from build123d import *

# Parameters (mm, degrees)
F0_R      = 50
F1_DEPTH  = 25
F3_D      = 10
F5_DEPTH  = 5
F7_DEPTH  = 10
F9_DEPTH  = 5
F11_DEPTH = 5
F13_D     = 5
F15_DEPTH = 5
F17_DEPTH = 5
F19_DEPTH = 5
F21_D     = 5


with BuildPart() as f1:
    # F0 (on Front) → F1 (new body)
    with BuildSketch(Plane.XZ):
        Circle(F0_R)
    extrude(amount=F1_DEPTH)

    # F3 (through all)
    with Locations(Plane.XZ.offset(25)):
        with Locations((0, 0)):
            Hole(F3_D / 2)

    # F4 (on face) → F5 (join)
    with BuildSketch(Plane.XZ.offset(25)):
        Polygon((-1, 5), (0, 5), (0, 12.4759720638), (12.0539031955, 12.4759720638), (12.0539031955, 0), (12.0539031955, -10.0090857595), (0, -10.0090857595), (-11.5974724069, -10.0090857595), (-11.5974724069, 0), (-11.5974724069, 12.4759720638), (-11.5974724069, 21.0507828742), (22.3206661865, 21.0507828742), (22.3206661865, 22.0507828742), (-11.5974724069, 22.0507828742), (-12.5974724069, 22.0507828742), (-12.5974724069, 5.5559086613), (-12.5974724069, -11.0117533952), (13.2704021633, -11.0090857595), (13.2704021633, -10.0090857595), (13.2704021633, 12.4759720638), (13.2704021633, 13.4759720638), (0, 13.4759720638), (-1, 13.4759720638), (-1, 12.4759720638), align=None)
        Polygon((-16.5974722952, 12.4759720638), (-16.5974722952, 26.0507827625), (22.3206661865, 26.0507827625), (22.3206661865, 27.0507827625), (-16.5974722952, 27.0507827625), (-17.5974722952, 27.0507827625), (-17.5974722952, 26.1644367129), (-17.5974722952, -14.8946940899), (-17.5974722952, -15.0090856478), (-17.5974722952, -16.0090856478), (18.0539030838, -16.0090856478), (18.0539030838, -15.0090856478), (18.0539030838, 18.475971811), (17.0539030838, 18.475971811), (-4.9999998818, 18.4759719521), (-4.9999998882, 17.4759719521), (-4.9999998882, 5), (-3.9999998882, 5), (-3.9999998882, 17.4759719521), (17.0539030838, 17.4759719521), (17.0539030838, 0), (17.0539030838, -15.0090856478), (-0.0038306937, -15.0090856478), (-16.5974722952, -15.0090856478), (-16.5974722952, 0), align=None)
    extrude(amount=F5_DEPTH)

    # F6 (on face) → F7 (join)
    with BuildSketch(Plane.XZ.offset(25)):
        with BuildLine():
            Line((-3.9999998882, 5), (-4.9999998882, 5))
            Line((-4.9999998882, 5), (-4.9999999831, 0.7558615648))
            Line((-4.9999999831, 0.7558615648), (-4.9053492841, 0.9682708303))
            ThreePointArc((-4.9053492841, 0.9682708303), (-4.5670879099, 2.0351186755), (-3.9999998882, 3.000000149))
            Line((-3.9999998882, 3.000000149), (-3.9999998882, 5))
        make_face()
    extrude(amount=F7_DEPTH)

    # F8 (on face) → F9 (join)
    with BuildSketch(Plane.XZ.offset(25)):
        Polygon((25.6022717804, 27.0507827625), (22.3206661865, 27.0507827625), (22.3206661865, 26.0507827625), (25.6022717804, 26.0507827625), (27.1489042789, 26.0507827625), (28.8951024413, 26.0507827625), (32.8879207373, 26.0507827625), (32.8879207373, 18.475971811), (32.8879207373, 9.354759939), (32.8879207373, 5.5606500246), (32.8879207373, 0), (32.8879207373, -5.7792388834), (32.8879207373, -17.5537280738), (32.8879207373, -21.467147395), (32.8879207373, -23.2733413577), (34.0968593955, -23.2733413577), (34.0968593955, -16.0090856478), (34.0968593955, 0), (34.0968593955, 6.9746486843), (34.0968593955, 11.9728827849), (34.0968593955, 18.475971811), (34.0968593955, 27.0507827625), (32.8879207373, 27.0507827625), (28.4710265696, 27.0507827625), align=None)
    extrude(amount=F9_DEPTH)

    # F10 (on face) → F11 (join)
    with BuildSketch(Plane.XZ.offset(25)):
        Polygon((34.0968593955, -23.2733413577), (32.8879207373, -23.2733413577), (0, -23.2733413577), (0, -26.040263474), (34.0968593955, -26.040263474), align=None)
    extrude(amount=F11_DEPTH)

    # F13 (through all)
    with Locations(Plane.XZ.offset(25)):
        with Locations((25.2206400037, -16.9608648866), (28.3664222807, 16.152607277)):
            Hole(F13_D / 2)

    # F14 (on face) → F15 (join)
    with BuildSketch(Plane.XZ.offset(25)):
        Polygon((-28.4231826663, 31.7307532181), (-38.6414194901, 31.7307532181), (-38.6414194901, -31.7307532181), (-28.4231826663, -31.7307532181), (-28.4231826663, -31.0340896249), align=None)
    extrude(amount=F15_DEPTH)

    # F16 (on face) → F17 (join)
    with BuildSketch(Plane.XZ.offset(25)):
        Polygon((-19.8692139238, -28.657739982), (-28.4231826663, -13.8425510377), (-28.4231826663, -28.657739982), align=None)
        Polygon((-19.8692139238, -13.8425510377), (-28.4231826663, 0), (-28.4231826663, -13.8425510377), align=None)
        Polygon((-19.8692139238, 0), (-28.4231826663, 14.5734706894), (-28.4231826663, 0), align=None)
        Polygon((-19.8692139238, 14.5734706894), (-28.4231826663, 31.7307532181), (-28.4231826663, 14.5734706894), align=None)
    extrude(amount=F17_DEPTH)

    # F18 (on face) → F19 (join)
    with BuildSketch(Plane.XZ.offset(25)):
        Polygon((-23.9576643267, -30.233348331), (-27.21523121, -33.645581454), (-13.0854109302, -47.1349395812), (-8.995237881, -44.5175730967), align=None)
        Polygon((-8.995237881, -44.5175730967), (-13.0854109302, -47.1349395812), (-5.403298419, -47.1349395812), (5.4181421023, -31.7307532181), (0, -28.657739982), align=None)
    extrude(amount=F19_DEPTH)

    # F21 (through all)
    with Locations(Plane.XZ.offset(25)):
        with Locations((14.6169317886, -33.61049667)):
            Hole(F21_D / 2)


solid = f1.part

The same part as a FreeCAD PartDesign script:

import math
import FreeCAD as App
import Part
import Sketcher

doc = App.newDocument("Part")
body = doc.addObject("PartDesign::Body", "Body")

sketch1 = doc.addObject("Sketcher::SketchObject", "Sketch")
body.addObject(sketch1)
sketch1.AttachmentSupport = (doc.XZ_Plane, [""])
sketch1.MapMode = "FlatFace"
sketch1.addGeometry(Part.Circle(App.Vector(0, 0, 0), App.Vector(0, 0, 1), 50), False)
sketch1.addConstraint([
    Sketcher.Constraint("Coincident", 0, 3, -1, 1),
    Sketcher.Constraint("Diameter", 0, 100.0),
])
pad1 = doc.addObject("PartDesign::Pad", "Pad")
body.addObject(pad1)
pad1.Profile = sketch1
pad1.Length = 25

sketch2 = doc.addObject("Sketcher::SketchObject", "Sketch001")
body.addObject(sketch2)
sketch2.AttachmentSupport = (doc.XZ_Plane, [""])
sketch2.MapMode = "FlatFace"
sketch2.AttachmentOffset = App.Placement(App.Vector(0, 0, 25), App.Rotation())
sketch2.addGeometry(Part.Circle(App.Vector(0, 0, 0), App.Vector(0, 0, 1), 5), False)
sketch2.addConstraint([
    Sketcher.Constraint("Coincident", 0, 3, -1, 1),
    Sketcher.Constraint("Diameter", 0, 10.0),
])
doc.recompute()
hole = doc.addObject("PartDesign::Hole", "Hole")
body.addObject(hole)
hole.Profile = sketch2
hole.ThreadType = "None"
hole.Diameter = 10
hole.DepthType = "ThroughAll"

sketch3 = doc.addObject("Sketcher::SketchObject", "Sketch002")
body.addObject(sketch3)
sketch3.AttachmentSupport = (doc.XZ_Plane, [""])
sketch3.MapMode = "FlatFace"
sketch3.AttachmentOffset = App.Placement(App.Vector(0, 0, 25), App.Rotation())
sketch3.addGeometry([
    Part.LineSegment(App.Vector(-1, 5, 0), App.Vector(0, 5, 0)),
    Part.LineSegment(App.Vector(0, 5, 0), App.Vector(0, 12.475972, 0)),
    Part.LineSegment(App.Vector(0, 12.475972, 0), App.Vector(12.053903, 12.475972, 0)),
    Part.LineSegment(App.Vector(12.053903, 12.475972, 0), App.Vector(12.053903, -10.009086, 0)),
    Part.LineSegment(App.Vector(12.053903, -10.009086, 0), App.Vector(-11.597472, -10.009086, 0)),
    Part.LineSegment(App.Vector(-11.597472, -10.009086, 0), App.Vector(-11.597472, 21.050783, 0)),
    Part.LineSegment(App.Vector(-11.597472, 21.050783, 0), App.Vector(22.320666, 21.050783, 0)),
    Part.LineSegment(App.Vector(22.320666, 21.050783, 0), App.Vector(22.320666, 22.050783, 0)),
    Part.LineSegment(App.Vector(22.320666, 22.050783, 0), App.Vector(-12.597472, 22.050783, 0)),
    Part.LineSegment(App.Vector(-12.597472, 22.050783, 0), App.Vector(-12.597472, -11.011753, 0)),
    Part.LineSegment(App.Vector(-12.597472, -11.011753, 0), App.Vector(13.270402, -11.009086, 0)),
    Part.LineSegment(App.Vector(13.270402, -11.009086, 0), App.Vector(13.270402, 13.475972, 0)),
    Part.LineSegment(App.Vector(13.270402, 13.475972, 0), App.Vector(-1, 13.475972, 0)),
    Part.LineSegment(App.Vector(-1, 13.475972, 0), App.Vector(-1, 5, 0)),
    Part.LineSegment(App.Vector(-16.597472, 26.050783, 0), App.Vector(22.320666, 26.050783, 0)),
    Part.LineSegment(App.Vector(22.320666, 26.050783, 0), App.Vector(22.320666, 27.050783, 0)),
    Part.LineSegment(App.Vector(22.320666, 27.050783, 0), App.Vector(-17.597472, 27.050783, 0)),
    Part.LineSegment(App.Vector(-17.597472, 27.050783, 0), App.Vector(-17.597472, -16.009086, 0)),
    Part.LineSegment(App.Vector(-17.597472, -16.009086, 0), App.Vector(18.053903, -16.009086, 0)),
    Part.LineSegment(App.Vector(18.053903, -16.009086, 0), App.Vector(18.053903, 18.475972, 0)),
    Part.LineSegment(App.Vector(18.053903, 18.475972, 0), App.Vector(17.053903, 18.475972, 0)),
    Part.LineSegment(App.Vector(17.053903, 18.475972, 0), App.Vector(-5, 18.475972, 0)),
    Part.LineSegment(App.Vector(-5, 18.475972, 0), App.Vector(-5, 17.475972, 0)),
    Part.LineSegment(App.Vector(-5, 17.475972, 0), App.Vector(-5, 5, 0)),
    Part.LineSegment(App.Vector(-5, 5, 0), App.Vector(-4, 5, 0)),
    Part.LineSegment(App.Vector(-4, 5, 0), App.Vector(-4, 17.475972, 0)),
    Part.LineSegment(App.Vector(-4, 17.475972, 0), App.Vector(17.053903, 17.475972, 0)),
    Part.LineSegment(App.Vector(17.053903, 17.475972, 0), App.Vector(17.053903, -15.009086, 0)),
    Part.LineSegment(App.Vector(17.053903, -15.009086, 0), App.Vector(-16.597472, -15.009086, 0)),
    Part.LineSegment(App.Vector(-16.597472, -15.009086, 0), App.Vector(-16.597472, 26.050783, 0)),
], False)
sketch3.addConstraint([
    Sketcher.Constraint("Coincident", 0, 2, 1, 1),
    Sketcher.Constraint("Coincident", 1, 2, 2, 1),
    Sketcher.Constraint("Coincident", 2, 2, 3, 1),
    Sketcher.Constraint("Coincident", 3, 2, 4, 1),
    Sketcher.Constraint("Coincident", 4, 2, 5, 1),
    Sketcher.Constraint("Coincident", 5, 2, 6, 1),
    Sketcher.Constraint("Coincident", 6, 2, 7, 1),
    Sketcher.Constraint("Coincident", 7, 2, 8, 1),
    Sketcher.Constraint("Coincident", 8, 2, 9, 1),
    Sketcher.Constraint("Coincident", 9, 2, 10, 1),
    Sketcher.Constraint("Coincident", 10, 2, 11, 1),
    Sketcher.Constraint("Coincident", 11, 2, 12, 1),
    Sketcher.Constraint("Coincident", 12, 2, 13, 1),
    Sketcher.Constraint("Coincident", 13, 2, 0, 1),
    Sketcher.Constraint("Coincident", 14, 2, 15, 1),
    Sketcher.Constraint("Coincident", 15, 2, 16, 1),
    Sketcher.Constraint("Coincident", 16, 2, 17, 1),
    Sketcher.Constraint("Coincident", 17, 2, 18, 1),
    Sketcher.Constraint("Coincident", 18, 2, 19, 1),
    Sketcher.Constraint("Coincident", 19, 2, 20, 1),
    Sketcher.Constraint("Coincident", 20, 2, 21, 1),
    Sketcher.Constraint("Coincident", 21, 2, 22, 1),
    Sketcher.Constraint("Coincident", 22, 2, 23, 1),
    Sketcher.Constraint("Coincident", 23, 2, 24, 1),
    Sketcher.Constraint("Coincident", 24, 2, 25, 1),
    Sketcher.Constraint("Coincident", 25, 2, 26, 1),
    Sketcher.Constraint("Coincident", 26, 2, 27, 1),
    Sketcher.Constraint("Coincident", 27, 2, 28, 1),
    Sketcher.Constraint("Coincident", 28, 2, 29, 1),
    Sketcher.Constraint("Coincident", 29, 2, 14, 1),
    Sketcher.Constraint("Horizontal", 0),
    Sketcher.Constraint("Vertical", 1),
    Sketcher.Constraint("Horizontal", 2),
    Sketcher.Constraint("Vertical", 3),
    Sketcher.Constraint("Horizontal", 4),
    Sketcher.Constraint("Vertical", 5),
    Sketcher.Constraint("Horizontal", 6),
    Sketcher.Constraint("Vertical", 7),
    Sketcher.Constraint("Horizontal", 8),
    Sketcher.Constraint("Vertical", 9),
    Sketcher.Constraint("Vertical", 11),
    Sketcher.Constraint("Horizontal", 12),
    Sketcher.Constraint("Vertical", 13),
    Sketcher.Constraint("Horizontal", 14),
    Sketcher.Constraint("Vertical", 15),
    Sketcher.Constraint("Horizontal", 16),
    Sketcher.Constraint("Vertical", 17),
    Sketcher.Constraint("Horizontal", 18),
    Sketcher.Constraint("Vertical", 19),
    Sketcher.Constraint("Horizontal", 20),
    Sketcher.Constraint("Horizontal", 21),
    Sketcher.Constraint("Vertical", 22),
    Sketcher.Constraint("Vertical", 23),
    Sketcher.Constraint("Horizontal", 24),
    Sketcher.Constraint("Vertical", 25),
    Sketcher.Constraint("Horizontal", 26),
    Sketcher.Constraint("Vertical", 27),
    Sketcher.Constraint("Horizontal", 28),
    Sketcher.Constraint("Vertical", 29),
    Sketcher.Constraint("PointOnObject", 0, 2, -2),
    Sketcher.Constraint("Horizontal", 13, 2, 23, 2),
    Sketcher.Constraint("Horizontal", 22, 2, 25, 2),
    Sketcher.Constraint("Vertical", 7, 2, 14, 2),
    Sketcher.Constraint("Vertical", 20, 2, 26, 2),
    Sketcher.Constraint("Equal", 0, 20),
    Sketcher.Constraint("Equal", 20, 24),
    Sketcher.Constraint("Equal", 24, 7),
    Sketcher.Constraint("Equal", 7, 15),
    Sketcher.Constraint("Equal", 15, 22),
    Sketcher.Constraint("DistanceX", 0, 1, 0, 2, 1.0),
    Sketcher.Constraint("DistanceY", -1, 1, 0, 2, 5.0),
    Sketcher.Constraint("DistanceX", 21, 2, -1, 1, 5.0),
    Sketcher.Constraint("DistanceX", 8, 2, 5, 2, 1.0),
    Sketcher.Constraint("DistanceY", 10, 2, 3, 2, 1.0),
    Sketcher.Constraint("DistanceY", 2, 2, 11, 2, 1.0),
    Sketcher.Constraint("DistanceY", 7, 2, 14, 2, 4.0),
    Sketcher.Constraint("DistanceX", 16, 2, 8, 2, 5.0),
    Sketcher.Constraint("DistanceY", 17, 2, 4, 2, 6.0),
    Sketcher.Constraint("DistanceX", 3, 2, 18, 2, 6.0),
    Sketcher.Constraint("DistanceY", 11, 2, 19, 2, 5.0),
    Sketcher.Constraint("DistanceY", 18, 2, 27, 2, 1.0),
    Sketcher.Constraint("DistanceX", 17, 2, 28, 2, 1.0),
    Sketcher.Constraint("DistanceX", 6, 1, 6, 2, 33.918139),
    Sketcher.Constraint("DistanceY", 5, 1, 5, 2, 31.059869),
    Sketcher.Constraint("DistanceY", 23, 2, 23, 1, 12.475972),
    Sketcher.Constraint("DistanceX", 3, 2, 10, 2, 1.216499),
    Sketcher.Constraint("DistanceX", 2, 1, 2, 2, 12.053903),
    Sketcher.Constraint("DistanceX", 4, 2, 4, 1, 23.651376),
    Sketcher.Constraint("DistanceY", 3, 2, 3, 1, 22.485058),
    Sketcher.Constraint("DistanceY", 9, 2, 9, 1, 33.062536),
])
pad2 = doc.addObject("PartDesign::Pad", "Pad001")
body.addObject(pad2)
pad2.Profile = sketch3
pad2.Length = 5

sketch4 = doc.addObject("Sketcher::SketchObject", "Sketch003")
body.addObject(sketch4)
sketch4.AttachmentSupport = (doc.XZ_Plane, [""])
sketch4.MapMode = "FlatFace"
sketch4.AttachmentOffset = App.Placement(App.Vector(0, 0, 25), App.Rotation())
sketch4.addGeometry([
    Part.LineSegment(App.Vector(-4, 5, 0), App.Vector(-5, 5, 0)),
    Part.LineSegment(App.Vector(-5, 5, 0), App.Vector(-5, 0.755862, 0)),
    Part.LineSegment(App.Vector(-5, 0.755862, 0), App.Vector(-4.905349, 0.968271, 0)),
    Part.ArcOfCircle(Part.Circle(App.Vector(0, 0, 0), App.Vector(0, 0, 1), 5), math.radians(143.1301), math.radians(168.833886)),
    Part.LineSegment(App.Vector(-4, 3, 0), App.Vector(-4, 5, 0)),
], False)
sketch4.addConstraint([
    Sketcher.Constraint("Coincident", 0, 2, 1, 1),
    Sketcher.Constraint("Coincident", 1, 2, 2, 1),
    Sketcher.Constraint("Coincident", 2, 2, 3, 2),
    Sketcher.Constraint("Coincident", 3, 1, 4, 1),
    Sketcher.Constraint("Coincident", 4, 2, 0, 1),
    Sketcher.Constraint("Horizontal", 0),
    Sketcher.Constraint("Vertical", 1),
    Sketcher.Constraint("Vertical", 4),
    Sketcher.Constraint("Coincident", 3, 3, -1, 1),
    Sketcher.Constraint("Radius", 3, 5.0),
    Sketcher.Constraint("DistanceX", 0, 2, 0, 1, 1.0),
    Sketcher.Constraint("DistanceY", 4, 1, 4, 2, 2.0),
    Sketcher.Constraint("DistanceX", 0, 2, -1, 1, 5.0),
    Sketcher.Constraint("DistanceY", 1, 2, 1, 1, 4.244138),
    Sketcher.Constraint("DistanceX", 2, 2, -1, 1, 4.905349),
])
pad3 = doc.addObject("PartDesign::Pad", "Pad002")
body.addObject(pad3)
pad3.Profile = sketch4
pad3.Length = 10

sketch5 = doc.addObject("Sketcher::SketchObject", "Sketch004")
body.addObject(sketch5)
sketch5.AttachmentSupport = (doc.XZ_Plane, [""])
sketch5.MapMode = "FlatFace"
sketch5.AttachmentOffset = App.Placement(App.Vector(0, 0, 25), App.Rotation())
sketch5.addGeometry([
    Part.LineSegment(App.Vector(22.320666, 27.050783, 0), App.Vector(22.320666, 26.050783, 0)),
    Part.LineSegment(App.Vector(22.320666, 26.050783, 0), App.Vector(32.887921, 26.050783, 0)),
    Part.LineSegment(App.Vector(32.887921, 26.050783, 0), App.Vector(32.887921, -23.273341, 0)),
    Part.LineSegment(App.Vector(32.887921, -23.273341, 0), App.Vector(34.096859, -23.273341, 0)),
    Part.LineSegment(App.Vector(34.096859, -23.273341, 0), App.Vector(34.096859, 27.050783, 0)),
    Part.LineSegment(App.Vector(34.096859, 27.050783, 0), App.Vector(22.320666, 27.050783, 0)),
], False)
sketch5.addConstraint([
    Sketcher.Constraint("Coincident", 0, 2, 1, 1),
    Sketcher.Constraint("Coincident", 1, 2, 2, 1),
    Sketcher.Constraint("Coincident", 2, 2, 3, 1),
    Sketcher.Constraint("Coincident", 3, 2, 4, 1),
    Sketcher.Constraint("Coincident", 4, 2, 5, 1),
    Sketcher.Constraint("Coincident", 5, 2, 0, 1),
    Sketcher.Constraint("Vertical", 0),
    Sketcher.Constraint("Horizontal", 1),
    Sketcher.Constraint("Vertical", 2),
    Sketcher.Constraint("Horizontal", 3),
    Sketcher.Constraint("Vertical", 4),
    Sketcher.Constraint("Horizontal", 5),
    Sketcher.Constraint("DistanceY", 0, 2, 0, 1, 1.0),
    Sketcher.Constraint("DistanceX", 3, 1, 3, 2, 1.208939),
    Sketcher.Constraint("DistanceX", 1, 1, 1, 2, 10.567255),
    Sketcher.Constraint("DistanceY", 2, 2, 2, 1, 49.324124),
    Sketcher.Constraint("DistanceX", -1, 1, 1, 2, 32.887921),
    Sketcher.Constraint("DistanceY", 2, 2, -1, 1, 23.273341),
])
pad4 = doc.addObject("PartDesign::Pad", "Pad003")
body.addObject(pad4)
pad4.Profile = sketch5
pad4.Length = 5

sketch6 = doc.addObject("Sketcher::SketchObject", "Sketch005")
body.addObject(sketch6)
sketch6.AttachmentSupport = (doc.XZ_Plane, [""])
sketch6.MapMode = "FlatFace"
sketch6.AttachmentOffset = App.Placement(App.Vector(0, 0, 25), App.Rotation())
sketch6.addGeometry([
    Part.LineSegment(App.Vector(34.096859, -23.273341, 0), App.Vector(0, -23.273341, 0)),
    Part.LineSegment(App.Vector(0, -23.273341, 0), App.Vector(0, -26.040263, 0)),
    Part.LineSegment(App.Vector(0, -26.040263, 0), App.Vector(34.096859, -26.040263, 0)),
    Part.LineSegment(App.Vector(34.096859, -26.040263, 0), App.Vector(34.096859, -23.273341, 0)),
], False)
sketch6.addConstraint([
    Sketcher.Constraint("Coincident", 0, 2, 1, 1),
    Sketcher.Constraint("Coincident", 1, 2, 2, 1),
    Sketcher.Constraint("Coincident", 2, 2, 3, 1),
    Sketcher.Constraint("Coincident", 3, 2, 0, 1),
    Sketcher.Constraint("Horizontal", 0),
    Sketcher.Constraint("Vertical", 1),
    Sketcher.Constraint("Horizontal", 2),
    Sketcher.Constraint("Vertical", 3),
    Sketcher.Constraint("PointOnObject", 0, 2, -2),
    Sketcher.Constraint("DistanceX", 0, 2, 0, 1, 34.096859),
    Sketcher.Constraint("DistanceY", 1, 2, 1, 1, 2.766922),
    Sketcher.Constraint("DistanceY", 0, 2, -1, 1, 23.273341),
])
pad5 = doc.addObject("PartDesign::Pad", "Pad004")
body.addObject(pad5)
pad5.Profile = sketch6
pad5.Length = 5

sketch7 = doc.addObject("Sketcher::SketchObject", "Sketch006")
body.addObject(sketch7)
sketch7.AttachmentSupport = (doc.XZ_Plane, [""])
sketch7.MapMode = "FlatFace"
sketch7.AttachmentOffset = App.Placement(App.Vector(0, 0, 25), App.Rotation())
sketch7.addGeometry([
    Part.Circle(App.Vector(25.22064, -16.960865, 0), App.Vector(0, 0, 1), 2.5),
    Part.Circle(App.Vector(28.366422, 16.152607, 0), App.Vector(0, 0, 1), 2.5),
], False)
sketch7.addConstraint([
    Sketcher.Constraint("Equal", 0, 1),
    Sketcher.Constraint("Diameter", 0, 5.0),
    Sketcher.Constraint("DistanceX", -1, 1, 0, 3, 25.22064),
    Sketcher.Constraint("DistanceY", 0, 3, -1, 1, 16.960865),
    Sketcher.Constraint("DistanceX", -1, 1, 1, 3, 28.366422),
    Sketcher.Constraint("DistanceY", -1, 1, 1, 3, 16.152607),
])
doc.recompute()
hole2 = doc.addObject("PartDesign::Hole", "Hole001")
body.addObject(hole2)
hole2.Profile = sketch7
hole2.ThreadType = "None"
hole2.Diameter = 5
hole2.DepthType = "ThroughAll"

sketch8 = doc.addObject("Sketcher::SketchObject", "Sketch007")
body.addObject(sketch8)
sketch8.AttachmentSupport = (doc.XZ_Plane, [""])
sketch8.MapMode = "FlatFace"
sketch8.AttachmentOffset = App.Placement(App.Vector(0, 0, 25), App.Rotation())
sketch8.addGeometry([
    Part.LineSegment(App.Vector(-28.423183, 31.730753, 0), App.Vector(-38.641419, 31.730753, 0)),
    Part.LineSegment(App.Vector(-38.641419, 31.730753, 0), App.Vector(-38.641419, -31.730753, 0)),
    Part.LineSegment(App.Vector(-38.641419, -31.730753, 0), App.Vector(-28.423183, -31.730753, 0)),
    Part.LineSegment(App.Vector(-28.423183, -31.730753, 0), App.Vector(-28.423183, 31.730753, 0)),
], False)
sketch8.addConstraint([
    Sketcher.Constraint("Coincident", 0, 2, 1, 1),
    Sketcher.Constraint("Coincident", 1, 2, 2, 1),
    Sketcher.Constraint("Coincident", 2, 2, 3, 1),
    Sketcher.Constraint("Coincident", 3, 2, 0, 1),
    Sketcher.Constraint("Horizontal", 0),
    Sketcher.Constraint("Vertical", 1),
    Sketcher.Constraint("Horizontal", 2),
    Sketcher.Constraint("Vertical", 3),
    Sketcher.Constraint("DistanceX", 0, 2, 0, 1, 10.218237),
    Sketcher.Constraint("DistanceY", 1, 2, 1, 1, 63.461506),
    Sketcher.Constraint("DistanceX", 0, 2, -1, 1, 38.641419),
    Sketcher.Constraint("DistanceY", -1, 1, 0, 2, 31.730753),
])
pad6 = doc.addObject("PartDesign::Pad", "Pad005")
body.addObject(pad6)
pad6.Profile = sketch8
pad6.Length = 5

sketch9 = doc.addObject("Sketcher::SketchObject", "Sketch008")
body.addObject(sketch9)
sketch9.AttachmentSupport = (doc.XZ_Plane, [""])
sketch9.MapMode = "FlatFace"
sketch9.AttachmentOffset = App.Placement(App.Vector(0, 0, 25), App.Rotation())
sketch9.addGeometry([
    Part.LineSegment(App.Vector(-19.869214, -28.65774, 0), App.Vector(-28.423183, -13.842551, 0)),
    Part.LineSegment(App.Vector(-28.423183, -13.842551, 0), App.Vector(-28.423183, -28.65774, 0)),
    Part.LineSegment(App.Vector(-28.423183, -28.65774, 0), App.Vector(-19.869214, -28.65774, 0)),
    Part.LineSegment(App.Vector(-19.869214, -13.842551, 0), App.Vector(-28.423183, 0, 0)),
    Part.LineSegment(App.Vector(-28.423183, 0, 0), App.Vector(-28.423183, -13.842551, 0)),
    Part.LineSegment(App.Vector(-28.423183, -13.842551, 0), App.Vector(-19.869214, -13.842551, 0)),
    Part.LineSegment(App.Vector(-19.869214, 0, 0), App.Vector(-28.423183, 14.573471, 0)),
    Part.LineSegment(App.Vector(-28.423183, 14.573471, 0), App.Vector(-28.423183, 0, 0)),
    Part.LineSegment(App.Vector(-28.423183, 0, 0), App.Vector(-19.869214, 0, 0)),
    Part.LineSegment(App.Vector(-19.869214, 14.573471, 0), App.Vector(-28.423183, 31.730753, 0)),
    Part.LineSegment(App.Vector(-28.423183, 31.730753, 0), App.Vector(-28.423183, 14.573471, 0)),
    Part.LineSegment(App.Vector(-28.423183, 14.573471, 0), App.Vector(-19.869214, 14.573471, 0)),
], False)
sketch9.addConstraint([
    Sketcher.Constraint("Coincident", 0, 2, 1, 1),
    Sketcher.Constraint("Coincident", 1, 2, 2, 1),
    Sketcher.Constraint("Coincident", 2, 2, 0, 1),
    Sketcher.Constraint("Coincident", 3, 2, 4, 1),
    Sketcher.Constraint("Coincident", 4, 2, 5, 1),
    Sketcher.Constraint("Coincident", 5, 2, 3, 1),
    Sketcher.Constraint("Coincident", 6, 2, 7, 1),
    Sketcher.Constraint("Coincident", 7, 2, 8, 1),
    Sketcher.Constraint("Coincident", 8, 2, 6, 1),
    Sketcher.Constraint("Coincident", 9, 2, 10, 1),
    Sketcher.Constraint("Coincident", 10, 2, 11, 1),
    Sketcher.Constraint("Coincident", 11, 2, 9, 1),
    Sketcher.Constraint("Vertical", 1),
    Sketcher.Constraint("Horizontal", 2),
    Sketcher.Constraint("Vertical", 4),
    Sketcher.Constraint("Horizontal", 5),
    Sketcher.Constraint("Vertical", 7),
    Sketcher.Constraint("Horizontal", 8),
    Sketcher.Constraint("Vertical", 10),
    Sketcher.Constraint("Horizontal", 11),
    Sketcher.Constraint("Coincident", 4, 2, 0, 2),
    Sketcher.Constraint("Coincident", 7, 2, 3, 2),
    Sketcher.Constraint("Coincident", 10, 2, 6, 2),
    Sketcher.Constraint("PointOnObject", 3, 2, -1),
    Sketcher.Constraint("Vertical", 2, 2, 5, 2),
    Sketcher.Constraint("Vertical", 5, 2, 8, 2),
    Sketcher.Constraint("Vertical", 8, 2, 11, 2),
    Sketcher.Constraint("DistanceX", 2, 1, 2, 2, 8.553969),
    Sketcher.Constraint("DistanceY", 1, 2, 1, 1, 14.815189),
    Sketcher.Constraint("DistanceY", 4, 2, 4, 1, 13.842551),
    Sketcher.Constraint("DistanceY", 7, 2, 7, 1, 14.573471),
    Sketcher.Constraint("DistanceY", 10, 2, 10, 1, 17.157283),
    Sketcher.Constraint("DistanceX", 0, 2, -1, 1, 28.423183),
])
pad7 = doc.addObject("PartDesign::Pad", "Pad006")
body.addObject(pad7)
pad7.Profile = sketch9
pad7.Length = 5

sketch10 = doc.addObject("Sketcher::SketchObject", "Sketch009")
body.addObject(sketch10)
sketch10.AttachmentSupport = (doc.XZ_Plane, [""])
sketch10.MapMode = "FlatFace"
sketch10.AttachmentOffset = App.Placement(App.Vector(0, 0, 25), App.Rotation())
sketch10.addGeometry([
    Part.LineSegment(App.Vector(-23.957664, -30.233348, 0), App.Vector(-27.215231, -33.645581, 0)),
    Part.LineSegment(App.Vector(-27.215231, -33.645581, 0), App.Vector(-13.085411, -47.13494, 0)),
    Part.LineSegment(App.Vector(-13.085411, -47.13494, 0), App.Vector(-5.403298, -47.13494, 0)),
    Part.LineSegment(App.Vector(-5.403298, -47.13494, 0), App.Vector(5.418142, -31.730753, 0)),
    Part.LineSegment(App.Vector(5.418142, -31.730753, 0), App.Vector(0, -28.65774, 0)),
    Part.LineSegment(App.Vector(0, -28.65774, 0), App.Vector(-8.995238, -44.517573, 0)),
    Part.LineSegment(App.Vector(-8.995238, -44.517573, 0), App.Vector(-23.957664, -30.233348, 0)),
], False)
sketch10.addConstraint([
    Sketcher.Constraint("Coincident", 0, 2, 1, 1),
    Sketcher.Constraint("Coincident", 1, 2, 2, 1),
    Sketcher.Constraint("Coincident", 2, 2, 3, 1),
    Sketcher.Constraint("Coincident", 3, 2, 4, 1),
    Sketcher.Constraint("Coincident", 4, 2, 5, 1),
    Sketcher.Constraint("Coincident", 5, 2, 6, 1),
    Sketcher.Constraint("Coincident", 6, 2, 0, 1),
    Sketcher.Constraint("Horizontal", 2),
    Sketcher.Constraint("PointOnObject", 4, 2, -2),
    Sketcher.Constraint("Perpendicular", 0, 1),
    Sketcher.Constraint("Perpendicular", 4, 5),
    Sketcher.Constraint("Parallel", 1, 6),
    Sketcher.Constraint("DistanceX", 2, 2, -1, 1, 5.403298),
    Sketcher.Constraint("DistanceY", 2, 2, 4, 2, 18.4772),
    Sketcher.Constraint("Distance", 0, 4.717529),
    Sketcher.Constraint("Distance", 1, 19.534959),
    Sketcher.Constraint("Distance", 4, 6.228938),
    Sketcher.Constraint("DistanceX", 2, 1, 2, 2, 7.682113),
    Sketcher.Constraint("DistanceX", 0, 2, -1, 1, 27.215231),
    Sketcher.Constraint("DistanceY", 0, 2, -1, 1, 33.645581),
    Sketcher.Constraint("DistanceX", 2, 2, 3, 2, 10.821441),
])
pad8 = doc.addObject("PartDesign::Pad", "Pad007")
body.addObject(pad8)
pad8.Profile = sketch10
pad8.Length = 5

sketch11 = doc.addObject("Sketcher::SketchObject", "Sketch010")
body.addObject(sketch11)
sketch11.AttachmentSupport = (doc.XZ_Plane, [""])
sketch11.MapMode = "FlatFace"
sketch11.AttachmentOffset = App.Placement(App.Vector(0, 0, 25), App.Rotation())
sketch11.addGeometry(Part.Circle(App.Vector(14.616932, -33.610497, 0), App.Vector(0, 0, 1), 2.5), False)
sketch11.addConstraint([
    Sketcher.Constraint("Diameter", 0, 5.0),
    Sketcher.Constraint("DistanceX", -1, 1, 0, 3, 14.616932),
    Sketcher.Constraint("DistanceY", 0, 3, -1, 1, 33.610497),
])
doc.recompute()
hole3 = doc.addObject("PartDesign::Hole", "Hole002")
body.addObject(hole3)
hole3.Profile = sketch11
hole3.ThreadType = "None"
hole3.Diameter = 5
hole3.DepthType = "ThroughAll"

doc.recompute()
